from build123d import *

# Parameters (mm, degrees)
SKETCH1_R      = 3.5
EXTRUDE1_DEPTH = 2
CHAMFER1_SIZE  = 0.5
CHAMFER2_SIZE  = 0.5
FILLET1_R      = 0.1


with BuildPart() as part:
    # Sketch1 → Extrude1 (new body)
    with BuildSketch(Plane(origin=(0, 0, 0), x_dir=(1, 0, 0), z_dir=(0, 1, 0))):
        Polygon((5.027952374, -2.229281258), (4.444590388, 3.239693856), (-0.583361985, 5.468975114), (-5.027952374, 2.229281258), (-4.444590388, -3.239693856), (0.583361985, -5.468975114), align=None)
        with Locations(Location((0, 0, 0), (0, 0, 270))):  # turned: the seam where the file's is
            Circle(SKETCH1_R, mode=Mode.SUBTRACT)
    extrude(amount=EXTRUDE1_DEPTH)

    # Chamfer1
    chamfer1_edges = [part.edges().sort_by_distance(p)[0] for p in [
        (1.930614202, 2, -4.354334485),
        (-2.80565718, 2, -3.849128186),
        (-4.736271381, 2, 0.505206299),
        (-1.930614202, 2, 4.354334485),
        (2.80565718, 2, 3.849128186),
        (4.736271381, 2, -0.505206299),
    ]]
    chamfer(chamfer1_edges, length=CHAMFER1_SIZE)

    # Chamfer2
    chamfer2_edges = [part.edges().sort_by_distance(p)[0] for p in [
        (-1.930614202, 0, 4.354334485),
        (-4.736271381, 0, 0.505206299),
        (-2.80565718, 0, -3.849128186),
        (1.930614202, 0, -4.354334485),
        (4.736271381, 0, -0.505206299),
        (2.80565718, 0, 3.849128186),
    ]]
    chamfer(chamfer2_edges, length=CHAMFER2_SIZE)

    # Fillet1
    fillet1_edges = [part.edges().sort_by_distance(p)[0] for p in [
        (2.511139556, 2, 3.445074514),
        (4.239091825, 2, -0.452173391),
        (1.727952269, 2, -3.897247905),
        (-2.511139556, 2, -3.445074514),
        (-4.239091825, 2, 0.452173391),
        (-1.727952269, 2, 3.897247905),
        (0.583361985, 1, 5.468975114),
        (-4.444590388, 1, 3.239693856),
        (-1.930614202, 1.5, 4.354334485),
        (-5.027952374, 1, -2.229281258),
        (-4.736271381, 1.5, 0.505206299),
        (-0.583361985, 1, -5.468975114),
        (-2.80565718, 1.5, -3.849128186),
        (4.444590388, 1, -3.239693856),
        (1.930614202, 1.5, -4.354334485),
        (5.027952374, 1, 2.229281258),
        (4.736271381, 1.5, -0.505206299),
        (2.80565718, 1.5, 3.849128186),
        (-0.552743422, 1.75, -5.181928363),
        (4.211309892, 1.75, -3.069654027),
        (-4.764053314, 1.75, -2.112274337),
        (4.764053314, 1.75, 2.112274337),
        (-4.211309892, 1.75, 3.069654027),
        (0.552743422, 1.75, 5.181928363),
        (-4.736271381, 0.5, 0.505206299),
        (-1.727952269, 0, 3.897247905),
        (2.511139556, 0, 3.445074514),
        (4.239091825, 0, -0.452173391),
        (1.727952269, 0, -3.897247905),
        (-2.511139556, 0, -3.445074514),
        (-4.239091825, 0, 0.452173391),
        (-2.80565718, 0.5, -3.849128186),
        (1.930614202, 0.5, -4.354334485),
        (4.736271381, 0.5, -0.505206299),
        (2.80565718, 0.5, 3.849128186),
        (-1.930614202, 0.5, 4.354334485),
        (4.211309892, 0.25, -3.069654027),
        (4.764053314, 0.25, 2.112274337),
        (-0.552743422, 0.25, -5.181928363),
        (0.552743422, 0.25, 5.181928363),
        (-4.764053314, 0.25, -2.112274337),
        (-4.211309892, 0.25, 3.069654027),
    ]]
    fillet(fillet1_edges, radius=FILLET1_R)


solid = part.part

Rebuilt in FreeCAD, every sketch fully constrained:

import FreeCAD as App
import Part
import Sketcher


def edges_at(feature, points):
    """Names of the edges that pass closest to the given points."""
    edges = feature.Shape.Edges
    near = lambda p: min(range(len(edges)), key=lambda i: edges[i].distToShape(Part.Vertex(*p))[0])
    return sorted({f"Edge{near(p) + 1}" for p in points})


def add_polygon(sketch, points):
    """Adds a closed chain of lines whose ends are joined by coincident constraints."""
    first, n = sketch.GeometryCount, len(points)
    for a, b in zip(points, points[1:] + points[:1]):
        sketch.addGeometry(Part.LineSegment(App.Vector(*a, 0), App.Vector(*b, 0)), False)
    for i in range(n):
        sketch.addConstraint(Sketcher.Constraint("Coincident", first + i, 2, first + (i + 1) % n, 1))

doc = App.newDocument("Part")
body = doc.addObject("PartDesign::Body", "Body")

# Sketch on XZ plane
sketch1 = body.newObject("Sketcher::SketchObject", "Sketch")
sketch1.AttachmentSupport = (doc.getObject("XZ_Plane"), [""])
sketch1.MapMode = "FlatFace"
add_polygon(sketch1, [(5, 2.2), (4.4, -3.2), (-0.6, -5.5), (-5, -2.2), (-4.4, 3.2), (0.6, 5.5)])  # lines 0-5
sketch1.addGeometry(Part.Circle(App.Vector(0, 0, 0), App.Vector(0, 0, 1), 3.5), False)  # 6
sketch1.addConstraint(Sketcher.Constraint("Coincident", 6, 3, -1, 1))
sketch1.addConstraint(Sketcher.Constraint("Symmetric", 0, 2, 3, 2, -1, 1))
sketch1.addConstraint(Sketcher.Constraint("Symmetric", 1, 2, 4, 2, -1, 1))
sketch1.addConstraint(Sketcher.Constraint("Symmetric", 2, 2, 5, 2, -1, 1))
sketch1.addConstraint(Sketcher.Constraint("Equal", 0, 1))
sketch1.addConstraint(Sketcher.Constraint("Equal", 1, 2))
sketch1.addConstraint(Sketcher.Constraint("Diameter", 6, 7.0))
sketch1.addConstraint(Sketcher.Constraint("Distance", 0, 5.5))
sketch1.addConstraint(Sketcher.Constraint("DistanceX", -1, 1, 0, 2, 4.44459))
sketch1.addConstraint(Sketcher.Constraint("DistanceX", 1, 2, -1, 1, 0.583362))
sketch1.addConstraint(Sketcher.Constraint("DistanceY", 2, 2, -1, 1, 2.229281))
pad1 = body.newObject("PartDesign::Pad", "Pad")
pad1.Profile = sketch1
pad1.Length = 2
pad1.Reversed = True
doc.recompute()

chamfer = body.newObject("PartDesign::Chamfer", "Chamfer")
chamfer.Base = (pad1, edges_at(pad1, [
    (1.931, 2, -4.354),
    (-2.806, 2, -3.849),
    (-4.736, 2, 0.505),
    (-1.931, 2, 4.354),
    (2.806, 2, 3.849),
    (4.736, 2, -0.505),
]))
chamfer.Size = 0.5
doc.recompute()

chamfer2 = body.newObject("PartDesign::Chamfer", "Chamfer001")
chamfer2.Base = (chamfer, edges_at(chamfer, [
    (-1.931, 0, 4.354),
    (-4.736, 0, 0.505),
    (-2.806, 0, -3.849),
    (1.931, 0, -4.354),
    (4.736, 0, -0.505),
    (2.806, 0, 3.849),
]))
chamfer2.Size = 0.5
doc.recompute()

fillet = body.newObject("PartDesign::Fillet", "Fillet")
fillet.Base = (chamfer2, edges_at(chamfer2, [
    (2.511, 2, 3.445),
    (4.239, 2, -0.452),
    (1.728, 2, -3.897),
    (-2.511, 2, -3.445),
    (-4.239, 2, 0.452),
    (-1.728, 2, 3.897),
    (0.583, 1, 5.469),
    (-4.445, 1, 3.24),
    (-1.931, 1.5, 4.354),
    (-5.028, 1, -2.229),
    (-4.736, 1.5, 0.505),
    (-0.583, 1, -5.469),
    (-2.806, 1.5, -3.849),
    (4.445, 1, -3.24),
    (1.931, 1.5, -4.354),
    (5.028, 1, 2.229),
    (4.736, 1.5, -0.505),
    (2.806, 1.5, 3.849),
    (-0.553, 1.75, -5.182),
    (4.211, 1.75, -3.07),
    (-4.764, 1.75, -2.112),
    (4.764, 1.75, 2.112),
    (-4.211, 1.75, 3.07),
    (0.553, 1.75, 5.182),
    (-4.736, 0.5, 0.505),
    (-1.728, 0, 3.897),
    (2.511, 0, 3.445),
    (4.239, 0, -0.452),
    (1.728, 0, -3.897),
    (-2.511, 0, -3.445),
    (-4.239, 0, 0.452),
    (-2.806, 0.5, -3.849),
    (1.931, 0.5, -4.354),
    (4.736, 0.5, -0.505),
    (2.806, 0.5, 3.849),
    (-1.931, 0.5, 4.354),
    (4.211, 0.25, -3.07),
    (4.764, 0.25, 2.112),
    (-0.553, 0.25, -5.182),
    (0.553, 0.25, 5.182),
    (-4.764, 0.25, -2.112),
    (-4.211, 0.25, 3.07),
]))
fillet.Radius = 0.1

doc.recompute()
